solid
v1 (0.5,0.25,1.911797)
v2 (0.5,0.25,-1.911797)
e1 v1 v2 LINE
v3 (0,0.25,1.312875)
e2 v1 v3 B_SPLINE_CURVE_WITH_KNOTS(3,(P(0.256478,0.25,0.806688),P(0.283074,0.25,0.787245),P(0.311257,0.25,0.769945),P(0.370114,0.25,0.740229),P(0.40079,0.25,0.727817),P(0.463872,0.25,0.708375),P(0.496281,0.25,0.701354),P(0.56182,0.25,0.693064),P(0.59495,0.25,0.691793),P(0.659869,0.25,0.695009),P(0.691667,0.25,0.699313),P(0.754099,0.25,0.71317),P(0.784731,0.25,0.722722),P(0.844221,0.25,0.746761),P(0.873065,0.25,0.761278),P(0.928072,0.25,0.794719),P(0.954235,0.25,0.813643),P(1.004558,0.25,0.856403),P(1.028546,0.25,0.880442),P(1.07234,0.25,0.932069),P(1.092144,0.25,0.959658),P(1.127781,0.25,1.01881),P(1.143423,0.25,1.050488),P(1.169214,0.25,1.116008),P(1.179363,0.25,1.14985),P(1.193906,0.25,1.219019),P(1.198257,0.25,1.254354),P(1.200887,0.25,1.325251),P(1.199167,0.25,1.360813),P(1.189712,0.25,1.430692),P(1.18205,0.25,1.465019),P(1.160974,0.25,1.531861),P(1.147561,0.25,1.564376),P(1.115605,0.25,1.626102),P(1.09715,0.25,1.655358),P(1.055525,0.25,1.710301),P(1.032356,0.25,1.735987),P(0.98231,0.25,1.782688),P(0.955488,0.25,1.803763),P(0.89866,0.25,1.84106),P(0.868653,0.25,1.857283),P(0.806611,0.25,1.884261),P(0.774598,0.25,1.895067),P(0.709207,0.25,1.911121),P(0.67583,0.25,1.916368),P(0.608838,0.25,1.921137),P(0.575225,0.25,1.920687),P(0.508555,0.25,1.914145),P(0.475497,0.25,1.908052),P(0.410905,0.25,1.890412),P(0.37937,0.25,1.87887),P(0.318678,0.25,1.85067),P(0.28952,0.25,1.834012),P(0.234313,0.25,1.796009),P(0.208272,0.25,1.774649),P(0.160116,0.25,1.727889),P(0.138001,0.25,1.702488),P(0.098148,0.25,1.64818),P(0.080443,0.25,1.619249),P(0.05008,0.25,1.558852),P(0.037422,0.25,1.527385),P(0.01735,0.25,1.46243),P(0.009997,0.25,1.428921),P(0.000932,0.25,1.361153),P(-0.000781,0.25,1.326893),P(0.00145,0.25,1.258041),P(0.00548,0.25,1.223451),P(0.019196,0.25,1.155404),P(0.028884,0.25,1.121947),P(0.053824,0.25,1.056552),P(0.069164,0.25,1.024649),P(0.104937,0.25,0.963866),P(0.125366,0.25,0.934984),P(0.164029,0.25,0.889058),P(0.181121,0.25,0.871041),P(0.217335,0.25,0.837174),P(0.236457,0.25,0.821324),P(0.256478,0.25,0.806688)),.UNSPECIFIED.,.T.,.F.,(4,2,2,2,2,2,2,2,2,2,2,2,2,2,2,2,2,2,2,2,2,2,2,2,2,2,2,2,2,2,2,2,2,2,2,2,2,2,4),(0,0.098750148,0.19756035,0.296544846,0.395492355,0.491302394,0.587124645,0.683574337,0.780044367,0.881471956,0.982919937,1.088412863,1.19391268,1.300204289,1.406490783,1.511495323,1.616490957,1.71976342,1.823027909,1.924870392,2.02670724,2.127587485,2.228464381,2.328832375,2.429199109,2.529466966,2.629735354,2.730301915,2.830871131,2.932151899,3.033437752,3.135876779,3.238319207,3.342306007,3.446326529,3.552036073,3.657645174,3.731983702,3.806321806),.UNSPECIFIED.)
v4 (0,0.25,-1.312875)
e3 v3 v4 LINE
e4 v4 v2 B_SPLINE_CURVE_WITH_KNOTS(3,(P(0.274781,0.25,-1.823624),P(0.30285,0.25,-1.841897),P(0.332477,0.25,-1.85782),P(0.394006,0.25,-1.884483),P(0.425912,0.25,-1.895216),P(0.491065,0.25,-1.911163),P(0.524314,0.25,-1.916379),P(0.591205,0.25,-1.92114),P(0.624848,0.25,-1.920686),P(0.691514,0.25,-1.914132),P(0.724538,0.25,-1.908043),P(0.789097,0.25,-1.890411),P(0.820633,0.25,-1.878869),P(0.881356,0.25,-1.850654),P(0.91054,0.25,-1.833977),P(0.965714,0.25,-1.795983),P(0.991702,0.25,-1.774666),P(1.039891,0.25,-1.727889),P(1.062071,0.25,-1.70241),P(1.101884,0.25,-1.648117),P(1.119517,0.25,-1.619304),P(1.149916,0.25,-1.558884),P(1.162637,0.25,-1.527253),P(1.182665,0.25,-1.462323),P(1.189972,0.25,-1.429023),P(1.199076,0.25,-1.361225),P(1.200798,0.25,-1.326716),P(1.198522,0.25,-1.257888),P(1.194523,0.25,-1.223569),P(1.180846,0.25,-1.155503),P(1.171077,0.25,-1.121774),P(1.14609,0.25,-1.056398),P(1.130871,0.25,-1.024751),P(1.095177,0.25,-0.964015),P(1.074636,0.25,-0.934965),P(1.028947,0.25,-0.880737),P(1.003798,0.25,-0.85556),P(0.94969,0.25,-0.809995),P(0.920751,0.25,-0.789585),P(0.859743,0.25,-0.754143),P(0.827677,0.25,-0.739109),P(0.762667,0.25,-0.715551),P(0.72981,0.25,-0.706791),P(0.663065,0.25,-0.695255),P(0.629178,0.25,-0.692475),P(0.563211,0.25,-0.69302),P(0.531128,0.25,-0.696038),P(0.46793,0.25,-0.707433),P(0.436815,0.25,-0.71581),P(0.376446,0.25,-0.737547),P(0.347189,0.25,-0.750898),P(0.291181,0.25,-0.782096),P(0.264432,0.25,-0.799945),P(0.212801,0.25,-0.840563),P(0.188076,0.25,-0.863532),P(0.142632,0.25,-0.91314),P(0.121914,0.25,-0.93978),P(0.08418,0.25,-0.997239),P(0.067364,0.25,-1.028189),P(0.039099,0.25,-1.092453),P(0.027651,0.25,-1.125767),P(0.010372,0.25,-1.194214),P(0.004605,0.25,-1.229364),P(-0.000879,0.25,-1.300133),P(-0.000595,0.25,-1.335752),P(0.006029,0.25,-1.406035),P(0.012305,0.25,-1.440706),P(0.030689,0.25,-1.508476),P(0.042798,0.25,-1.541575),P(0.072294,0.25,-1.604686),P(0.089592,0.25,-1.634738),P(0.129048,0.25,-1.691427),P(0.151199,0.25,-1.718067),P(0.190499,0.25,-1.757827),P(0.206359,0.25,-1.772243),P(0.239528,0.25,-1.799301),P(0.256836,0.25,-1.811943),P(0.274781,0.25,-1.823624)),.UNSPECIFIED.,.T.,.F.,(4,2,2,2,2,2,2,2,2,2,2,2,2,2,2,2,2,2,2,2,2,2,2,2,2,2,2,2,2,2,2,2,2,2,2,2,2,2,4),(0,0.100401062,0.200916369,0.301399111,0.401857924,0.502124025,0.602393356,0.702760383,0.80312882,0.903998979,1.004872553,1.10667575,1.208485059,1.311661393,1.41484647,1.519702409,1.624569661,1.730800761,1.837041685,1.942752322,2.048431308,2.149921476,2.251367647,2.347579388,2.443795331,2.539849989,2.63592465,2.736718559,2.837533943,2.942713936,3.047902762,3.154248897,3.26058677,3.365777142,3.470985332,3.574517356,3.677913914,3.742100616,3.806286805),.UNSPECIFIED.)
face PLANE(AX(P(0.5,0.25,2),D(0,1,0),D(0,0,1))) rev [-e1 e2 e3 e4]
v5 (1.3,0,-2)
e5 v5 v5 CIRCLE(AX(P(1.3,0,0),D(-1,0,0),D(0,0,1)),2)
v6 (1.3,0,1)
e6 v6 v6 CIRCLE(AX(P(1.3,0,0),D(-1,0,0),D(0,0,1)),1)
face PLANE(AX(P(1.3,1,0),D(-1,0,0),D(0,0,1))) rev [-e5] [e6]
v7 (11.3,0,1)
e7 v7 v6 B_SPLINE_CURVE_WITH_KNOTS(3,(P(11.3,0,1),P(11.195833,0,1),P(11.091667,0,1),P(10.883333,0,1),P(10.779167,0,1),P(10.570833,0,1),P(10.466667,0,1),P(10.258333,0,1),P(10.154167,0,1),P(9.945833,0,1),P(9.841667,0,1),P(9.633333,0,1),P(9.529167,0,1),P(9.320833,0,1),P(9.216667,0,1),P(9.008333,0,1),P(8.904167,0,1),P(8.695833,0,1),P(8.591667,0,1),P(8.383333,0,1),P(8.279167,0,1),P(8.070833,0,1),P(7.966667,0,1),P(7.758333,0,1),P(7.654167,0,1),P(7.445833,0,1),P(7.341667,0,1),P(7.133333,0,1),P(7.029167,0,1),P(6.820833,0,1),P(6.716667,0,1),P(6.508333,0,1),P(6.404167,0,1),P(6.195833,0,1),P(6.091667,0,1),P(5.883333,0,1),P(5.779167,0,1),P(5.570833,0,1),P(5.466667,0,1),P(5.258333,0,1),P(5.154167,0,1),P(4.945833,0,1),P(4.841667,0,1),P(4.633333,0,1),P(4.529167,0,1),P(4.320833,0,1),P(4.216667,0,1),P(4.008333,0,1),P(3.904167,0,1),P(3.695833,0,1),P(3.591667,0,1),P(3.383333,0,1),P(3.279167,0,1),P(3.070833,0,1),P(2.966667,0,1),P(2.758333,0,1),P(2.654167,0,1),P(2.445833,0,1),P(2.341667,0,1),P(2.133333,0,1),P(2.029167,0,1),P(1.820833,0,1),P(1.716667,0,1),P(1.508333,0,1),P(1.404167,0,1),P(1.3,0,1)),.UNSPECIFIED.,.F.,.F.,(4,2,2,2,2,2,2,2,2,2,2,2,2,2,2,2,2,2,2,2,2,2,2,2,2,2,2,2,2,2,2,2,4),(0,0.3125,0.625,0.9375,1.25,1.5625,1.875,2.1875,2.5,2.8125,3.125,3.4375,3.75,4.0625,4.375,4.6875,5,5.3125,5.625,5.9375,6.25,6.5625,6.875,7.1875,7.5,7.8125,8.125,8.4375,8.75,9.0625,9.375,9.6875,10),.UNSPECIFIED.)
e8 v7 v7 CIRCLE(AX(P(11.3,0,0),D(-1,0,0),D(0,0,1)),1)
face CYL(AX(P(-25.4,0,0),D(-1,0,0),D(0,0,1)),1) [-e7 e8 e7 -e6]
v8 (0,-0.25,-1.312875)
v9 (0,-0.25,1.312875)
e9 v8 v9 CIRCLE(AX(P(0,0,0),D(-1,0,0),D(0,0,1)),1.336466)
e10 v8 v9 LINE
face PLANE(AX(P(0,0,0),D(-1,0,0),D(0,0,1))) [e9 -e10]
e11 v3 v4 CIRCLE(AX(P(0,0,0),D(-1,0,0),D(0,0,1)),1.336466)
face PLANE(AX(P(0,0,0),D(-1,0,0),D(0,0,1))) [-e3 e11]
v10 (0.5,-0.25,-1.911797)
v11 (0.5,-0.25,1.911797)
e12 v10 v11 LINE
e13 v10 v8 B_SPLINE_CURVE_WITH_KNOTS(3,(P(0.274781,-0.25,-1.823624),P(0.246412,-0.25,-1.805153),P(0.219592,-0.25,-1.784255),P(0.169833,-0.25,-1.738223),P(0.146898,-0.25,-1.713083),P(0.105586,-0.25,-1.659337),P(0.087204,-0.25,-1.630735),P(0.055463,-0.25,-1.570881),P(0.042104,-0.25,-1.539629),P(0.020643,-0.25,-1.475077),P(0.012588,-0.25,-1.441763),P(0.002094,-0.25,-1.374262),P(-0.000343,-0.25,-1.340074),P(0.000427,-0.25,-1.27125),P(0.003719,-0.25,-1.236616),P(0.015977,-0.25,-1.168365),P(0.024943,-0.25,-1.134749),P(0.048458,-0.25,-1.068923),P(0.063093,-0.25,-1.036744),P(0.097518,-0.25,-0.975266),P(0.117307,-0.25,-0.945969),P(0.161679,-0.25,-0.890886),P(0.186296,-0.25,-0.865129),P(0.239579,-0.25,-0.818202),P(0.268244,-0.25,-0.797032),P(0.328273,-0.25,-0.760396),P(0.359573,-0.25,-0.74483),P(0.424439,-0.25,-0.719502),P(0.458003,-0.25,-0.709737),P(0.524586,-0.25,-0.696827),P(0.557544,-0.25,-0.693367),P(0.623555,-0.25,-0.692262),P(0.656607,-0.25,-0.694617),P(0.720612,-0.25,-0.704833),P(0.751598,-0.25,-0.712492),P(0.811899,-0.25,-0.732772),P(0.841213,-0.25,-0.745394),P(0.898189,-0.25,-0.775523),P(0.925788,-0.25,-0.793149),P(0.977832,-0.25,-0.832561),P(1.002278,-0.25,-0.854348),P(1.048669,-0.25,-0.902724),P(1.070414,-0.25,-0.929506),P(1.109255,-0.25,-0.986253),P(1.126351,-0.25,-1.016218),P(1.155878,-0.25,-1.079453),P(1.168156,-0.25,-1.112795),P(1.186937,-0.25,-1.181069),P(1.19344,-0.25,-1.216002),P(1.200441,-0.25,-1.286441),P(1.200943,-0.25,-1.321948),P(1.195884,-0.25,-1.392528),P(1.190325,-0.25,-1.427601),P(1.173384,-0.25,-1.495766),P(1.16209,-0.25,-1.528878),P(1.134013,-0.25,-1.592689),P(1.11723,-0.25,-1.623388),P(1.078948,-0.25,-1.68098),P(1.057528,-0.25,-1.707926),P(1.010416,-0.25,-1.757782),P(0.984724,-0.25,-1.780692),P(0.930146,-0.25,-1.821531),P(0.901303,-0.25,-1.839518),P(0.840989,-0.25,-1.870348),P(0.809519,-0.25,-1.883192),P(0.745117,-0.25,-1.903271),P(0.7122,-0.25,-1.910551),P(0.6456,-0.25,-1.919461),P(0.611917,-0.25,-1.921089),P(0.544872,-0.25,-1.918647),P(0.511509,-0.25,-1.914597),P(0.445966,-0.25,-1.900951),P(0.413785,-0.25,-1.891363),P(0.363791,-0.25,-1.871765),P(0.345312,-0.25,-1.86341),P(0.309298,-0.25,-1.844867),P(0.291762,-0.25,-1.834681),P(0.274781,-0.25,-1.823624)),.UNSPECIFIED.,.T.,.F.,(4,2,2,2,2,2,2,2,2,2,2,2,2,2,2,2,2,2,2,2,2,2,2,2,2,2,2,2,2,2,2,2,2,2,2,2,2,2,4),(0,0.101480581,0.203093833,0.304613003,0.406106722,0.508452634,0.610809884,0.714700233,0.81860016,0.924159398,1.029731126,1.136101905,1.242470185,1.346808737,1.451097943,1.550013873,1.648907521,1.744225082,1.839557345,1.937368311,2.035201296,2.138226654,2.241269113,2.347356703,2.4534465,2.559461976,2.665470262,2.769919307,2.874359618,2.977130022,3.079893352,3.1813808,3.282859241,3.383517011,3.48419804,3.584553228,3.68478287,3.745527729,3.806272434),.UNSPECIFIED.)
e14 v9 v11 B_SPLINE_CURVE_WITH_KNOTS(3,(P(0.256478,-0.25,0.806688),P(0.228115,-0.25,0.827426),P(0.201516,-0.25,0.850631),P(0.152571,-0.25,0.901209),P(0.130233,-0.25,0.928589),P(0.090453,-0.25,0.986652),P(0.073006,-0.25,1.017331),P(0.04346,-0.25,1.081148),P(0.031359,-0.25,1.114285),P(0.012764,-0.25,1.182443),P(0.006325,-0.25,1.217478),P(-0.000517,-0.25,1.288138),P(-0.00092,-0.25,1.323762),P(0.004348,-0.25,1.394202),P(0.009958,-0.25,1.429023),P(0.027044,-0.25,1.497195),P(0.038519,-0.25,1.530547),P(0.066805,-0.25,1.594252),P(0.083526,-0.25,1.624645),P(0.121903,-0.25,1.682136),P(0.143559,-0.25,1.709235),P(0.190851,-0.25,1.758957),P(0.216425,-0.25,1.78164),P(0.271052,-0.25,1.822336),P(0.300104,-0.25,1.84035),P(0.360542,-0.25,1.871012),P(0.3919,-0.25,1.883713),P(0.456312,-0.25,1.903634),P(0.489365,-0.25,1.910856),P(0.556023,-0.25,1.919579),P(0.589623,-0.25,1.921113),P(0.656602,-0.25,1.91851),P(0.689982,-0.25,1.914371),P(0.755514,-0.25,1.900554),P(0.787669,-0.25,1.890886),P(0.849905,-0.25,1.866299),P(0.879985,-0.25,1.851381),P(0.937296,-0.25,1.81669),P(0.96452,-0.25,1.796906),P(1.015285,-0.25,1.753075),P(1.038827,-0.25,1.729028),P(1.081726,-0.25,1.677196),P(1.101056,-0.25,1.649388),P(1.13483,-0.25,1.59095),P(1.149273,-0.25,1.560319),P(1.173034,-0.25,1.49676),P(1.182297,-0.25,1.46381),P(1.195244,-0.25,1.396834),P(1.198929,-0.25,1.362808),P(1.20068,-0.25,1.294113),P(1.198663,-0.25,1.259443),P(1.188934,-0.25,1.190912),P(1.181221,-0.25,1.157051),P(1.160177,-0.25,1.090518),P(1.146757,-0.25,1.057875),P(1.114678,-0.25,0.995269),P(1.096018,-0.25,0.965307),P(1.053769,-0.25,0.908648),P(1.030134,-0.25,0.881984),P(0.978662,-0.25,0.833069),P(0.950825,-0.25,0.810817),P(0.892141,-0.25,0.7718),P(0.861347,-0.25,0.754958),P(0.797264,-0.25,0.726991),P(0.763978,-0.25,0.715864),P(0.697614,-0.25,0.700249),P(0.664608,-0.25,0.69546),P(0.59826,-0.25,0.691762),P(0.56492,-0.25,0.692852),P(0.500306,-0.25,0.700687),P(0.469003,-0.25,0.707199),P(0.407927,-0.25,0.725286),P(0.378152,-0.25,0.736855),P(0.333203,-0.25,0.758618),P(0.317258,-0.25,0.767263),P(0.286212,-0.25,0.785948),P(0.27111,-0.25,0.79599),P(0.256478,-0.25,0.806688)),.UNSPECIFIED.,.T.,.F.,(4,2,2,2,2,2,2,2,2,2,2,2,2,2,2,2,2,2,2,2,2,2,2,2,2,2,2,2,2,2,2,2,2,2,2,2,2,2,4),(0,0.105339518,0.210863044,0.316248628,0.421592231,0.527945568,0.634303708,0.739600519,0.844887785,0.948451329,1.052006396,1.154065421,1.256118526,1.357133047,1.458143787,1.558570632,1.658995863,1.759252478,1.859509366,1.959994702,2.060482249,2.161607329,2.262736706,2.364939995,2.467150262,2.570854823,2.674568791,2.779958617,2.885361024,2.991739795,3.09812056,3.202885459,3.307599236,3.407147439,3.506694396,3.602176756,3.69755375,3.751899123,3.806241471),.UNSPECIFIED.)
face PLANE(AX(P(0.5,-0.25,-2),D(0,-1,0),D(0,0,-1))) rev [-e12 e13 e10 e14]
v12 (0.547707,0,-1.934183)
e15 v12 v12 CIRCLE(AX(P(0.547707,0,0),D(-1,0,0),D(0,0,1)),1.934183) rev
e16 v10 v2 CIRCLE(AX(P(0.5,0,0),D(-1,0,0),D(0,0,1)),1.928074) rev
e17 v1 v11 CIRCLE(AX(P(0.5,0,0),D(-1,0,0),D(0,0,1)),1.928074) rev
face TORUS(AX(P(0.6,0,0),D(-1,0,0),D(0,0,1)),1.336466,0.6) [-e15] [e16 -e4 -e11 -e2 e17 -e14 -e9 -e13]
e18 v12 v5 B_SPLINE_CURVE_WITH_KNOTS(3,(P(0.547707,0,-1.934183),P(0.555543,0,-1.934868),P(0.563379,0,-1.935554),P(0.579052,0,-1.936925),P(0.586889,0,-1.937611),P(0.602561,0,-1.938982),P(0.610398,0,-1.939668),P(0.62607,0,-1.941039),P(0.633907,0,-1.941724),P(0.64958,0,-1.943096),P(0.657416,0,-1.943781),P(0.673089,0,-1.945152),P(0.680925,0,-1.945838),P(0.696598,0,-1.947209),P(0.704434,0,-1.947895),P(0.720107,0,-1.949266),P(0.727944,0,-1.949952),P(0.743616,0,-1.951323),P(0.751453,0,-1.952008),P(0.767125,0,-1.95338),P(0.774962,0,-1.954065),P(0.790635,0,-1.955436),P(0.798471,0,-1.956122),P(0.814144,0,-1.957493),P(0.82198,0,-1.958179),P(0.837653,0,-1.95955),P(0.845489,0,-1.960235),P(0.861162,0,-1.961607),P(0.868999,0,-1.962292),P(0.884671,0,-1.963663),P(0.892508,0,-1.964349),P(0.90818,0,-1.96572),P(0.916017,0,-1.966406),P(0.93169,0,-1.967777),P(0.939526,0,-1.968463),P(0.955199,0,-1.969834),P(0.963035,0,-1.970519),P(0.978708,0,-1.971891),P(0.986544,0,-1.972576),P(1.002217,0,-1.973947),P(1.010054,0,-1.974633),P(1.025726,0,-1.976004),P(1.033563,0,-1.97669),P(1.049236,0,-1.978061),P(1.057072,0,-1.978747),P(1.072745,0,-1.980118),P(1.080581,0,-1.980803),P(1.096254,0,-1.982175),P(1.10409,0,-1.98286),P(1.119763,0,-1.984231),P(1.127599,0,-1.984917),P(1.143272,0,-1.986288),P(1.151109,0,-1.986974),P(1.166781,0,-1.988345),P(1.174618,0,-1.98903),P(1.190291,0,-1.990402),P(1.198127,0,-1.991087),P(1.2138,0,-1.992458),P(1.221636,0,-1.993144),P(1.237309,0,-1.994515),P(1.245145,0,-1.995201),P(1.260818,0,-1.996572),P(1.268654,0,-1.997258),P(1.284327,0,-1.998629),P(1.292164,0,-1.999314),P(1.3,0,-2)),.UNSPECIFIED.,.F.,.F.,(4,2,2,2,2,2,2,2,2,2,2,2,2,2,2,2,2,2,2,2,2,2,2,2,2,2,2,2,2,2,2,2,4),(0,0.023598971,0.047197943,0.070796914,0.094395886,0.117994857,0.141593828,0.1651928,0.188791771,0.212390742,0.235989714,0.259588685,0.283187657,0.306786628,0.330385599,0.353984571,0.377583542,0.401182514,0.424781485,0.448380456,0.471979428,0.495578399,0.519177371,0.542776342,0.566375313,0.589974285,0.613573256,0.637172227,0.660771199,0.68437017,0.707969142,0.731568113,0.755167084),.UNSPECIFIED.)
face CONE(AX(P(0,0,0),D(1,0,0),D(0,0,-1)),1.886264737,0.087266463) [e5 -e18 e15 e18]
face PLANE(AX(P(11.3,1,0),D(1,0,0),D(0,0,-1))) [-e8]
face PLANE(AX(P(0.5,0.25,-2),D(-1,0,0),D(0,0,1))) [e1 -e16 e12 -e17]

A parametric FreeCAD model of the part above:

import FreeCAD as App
import Part
import Sketcher
Q = App.Units.Quantity


def edges_at(feature, points):
    """Names of the edges that pass closest to the given points."""
    edges = feature.Shape.Edges
    near = lambda p: min(range(len(edges)), key=lambda i: edges[i].distToShape(Part.Vertex(*p))[0])
    return sorted({f"Edge{near(p) + 1}" for p in points})


def add_polygon(sketch, points):
    """Adds a closed chain of lines whose ends are joined by coincident constraints."""
    first, n = sketch.GeometryCount, len(points)
    for a, b in zip(points, points[1:] + points[:1]):
        sketch.addGeometry(Part.LineSegment(App.Vector(*a, 0), App.Vector(*b, 0)), False)
    for i in range(n):
        sketch.addConstraint(Sketcher.Constraint("Coincident", first + i, 2, first + (i + 1) % n, 1))

doc = App.newDocument("Part")
params = doc.addObject("Spreadsheet::Sheet", "Params")
for row, (alias, value) in enumerate([
    ("sketch1_width", "10 mm"),
    ("sketch1_height", "1 mm"),
    ("sketch1_width2", "11.3 mm"),
    ("revolution_angle", "360 deg"),
    ("fillet_radius", "0.6 mm"),
    ("sketch2_height", "4 mm"),
    ("sketch2_width", "0.5 mm"),
    ("pocket1_length", "0.5 mm"),
], start=1):
    params.set(f"A{row}", alias)
    params.set(f"B{row}", "=" + value)
    params.setAlias(f"B{row}", alias)

body = doc.addObject("PartDesign::Body", "Body")

# Sketch on XY plane
sketch1 = body.newObject("Sketcher::SketchObject", "Sketch")
sketch1.AttachmentSupport = (doc.getObject("XY_Plane"), [""])
sketch1.MapMode = "FlatFace"
add_polygon(sketch1, [(1.3, 1), (1.3, 2), (0, 1.9), (0, 0), (11.3, 0), (11.3, 1)])  # lines 0-5
sketch1.addConstraint(Sketcher.Constraint("Vertical", 0))
sketch1.addConstraint(Sketcher.Constraint("Vertical", 2))
sketch1.addConstraint(Sketcher.Constraint("Horizontal", 3))
sketch1.addConstraint(Sketcher.Constraint("Vertical", 4))
sketch1.addConstraint(Sketcher.Constraint("Horizontal", 5))
sketch1.addConstraint(Sketcher.Constraint("Coincident", 2, 2, -1, 1))
sketch1.addConstraint(Sketcher.Constraint("Equal", 0, 4))
sketch1.addConstraint(Sketcher.Constraint("DistanceX", 5, 2, 5, 1, 10.0))
sketch1.addConstraint(Sketcher.Constraint("DistanceY", 0, 1, 0, 2, 1.0))
sketch1.addConstraint(Sketcher.Constraint("Angle", 1, Q("-175 deg")))
sketch1.addConstraint(Sketcher.Constraint("DistanceX", 3, 1, 3, 2, 11.3))
sketch1.setExpression("Constraints[13]", "Params.sketch1_width")
sketch1.setExpression("Constraints[14]", "Params.sketch1_height")
sketch1.setExpression("Constraints[16]", "Params.sketch1_width2")
revolution = body.newObject("PartDesign::Revolution", "Revolution")
revolution.Profile = sketch1
revolution.ReferenceAxis = (sketch1, ["H_Axis"])
revolution.setExpression("Angle", "Params.revolution_angle")
doc.recompute()

fillet = body.newObject("PartDesign::Fillet", "Fillet")
fillet.Base = (revolution, edges_at(revolution, [(0, 0, -1.886)]))
fillet.setExpression("Radius", "Params.fillet_radius")

# Sketch on YZ plane
sketch2 = body.newObject("Sketcher::SketchObject", "Sketch001")
sketch2.AttachmentSupport = (doc.getObject("YZ_Plane"), [""])
sketch2.MapMode = "FlatFace"
add_polygon(sketch2, [(0.2, 2), (-0.2, 2), (-0.2, -2), (0.2, -2)])  # lines 0-3
sketch2.addConstraint(Sketcher.Constraint("Horizontal", 0))
sketch2.addConstraint(Sketcher.Constraint("Vertical", 1))
sketch2.addConstraint(Sketcher.Constraint("Horizontal", 2))
sketch2.addConstraint(Sketcher.Constraint("Vertical", 3))
sketch2.addConstraint(Sketcher.Constraint("Symmetric", 0, 2, 2, 2, -1, 1))
sketch2.addConstraint(Sketcher.Constraint("DistanceY", 1, 2, 1, 1, 4.0))
sketch2.addConstraint(Sketcher.Constraint("DistanceX", 0, 2, 0, 1, 0.5))
sketch2.setExpression("Constraints[9]", "Params.sketch2_height")
sketch2.setExpression("Constraints[10]", "Params.sketch2_width")
pocket1 = body.newObject("PartDesign::Pocket", "Pocket")
pocket1.Profile = sketch2
pocket1.setExpression("Length", "Params.pocket1_length")
pocket1.Reversed = True

doc.recompute()
